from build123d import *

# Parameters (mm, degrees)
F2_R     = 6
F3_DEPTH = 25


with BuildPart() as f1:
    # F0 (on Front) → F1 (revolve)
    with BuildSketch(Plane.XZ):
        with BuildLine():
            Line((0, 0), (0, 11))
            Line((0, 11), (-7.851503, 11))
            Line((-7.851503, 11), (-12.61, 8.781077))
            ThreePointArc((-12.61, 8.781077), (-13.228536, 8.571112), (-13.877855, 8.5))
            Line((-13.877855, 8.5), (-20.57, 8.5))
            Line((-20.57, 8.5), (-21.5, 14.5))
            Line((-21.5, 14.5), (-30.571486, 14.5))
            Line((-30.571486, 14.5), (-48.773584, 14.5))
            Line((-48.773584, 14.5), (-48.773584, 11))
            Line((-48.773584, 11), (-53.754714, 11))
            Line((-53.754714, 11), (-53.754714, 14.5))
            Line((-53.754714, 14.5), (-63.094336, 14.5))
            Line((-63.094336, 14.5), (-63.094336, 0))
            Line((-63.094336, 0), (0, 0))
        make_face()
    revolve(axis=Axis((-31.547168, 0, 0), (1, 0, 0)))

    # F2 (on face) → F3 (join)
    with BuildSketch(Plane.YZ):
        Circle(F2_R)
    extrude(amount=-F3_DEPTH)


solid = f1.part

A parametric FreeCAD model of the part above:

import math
import FreeCAD as App
import Part
import Sketcher
from FreeCAD import Vector
Q = App.Units.Quantity

doc = App.newDocument("Part")
body = doc.addObject("PartDesign::Body", "Body")

# Sketch on XZ plane
sketch1 = body.newObject("Sketcher::SketchObject", "Sketch")
sketch1.AttachmentSupport = (doc.getObject("XZ_Plane"), [""])
sketch1.MapMode = "FlatFace"
sketch1.addGeometry([
    Part.LineSegment(Vector(0, 0, 0), Vector(0, 11, 0)),  # 0
    Part.LineSegment(Vector(0, 11, 0), Vector(-7.9, 11, 0)),  # 1
    Part.LineSegment(Vector(-7.9, 11, 0), Vector(-12.6, 8.8, 0)),  # 2
    Part.ArcOfCircle(Part.Circle(Vector(-13.9, 11.5, 0), Vector(0, 0, 1), 3), math.radians(-90), math.radians(-65)),  # 3
    Part.LineSegment(Vector(-13.9, 8.5, 0), Vector(-20.6, 8.5, 0)),  # 4
    Part.LineSegment(Vector(-20.6, 8.5, 0), Vector(-21.5, 14.5, 0)),  # 5
    Part.LineSegment(Vector(-21.5, 14.5, 0), Vector(-48.8, 14.5, 0)),  # 6
    Part.LineSegment(Vector(-48.8, 14.5, 0), Vector(-48.8, 11, 0)),  # 7
    Part.LineSegment(Vector(-48.8, 11, 0), Vector(-53.8, 11, 0)),  # 8
    Part.LineSegment(Vector(-53.8, 11, 0), Vector(-53.8, 14.5, 0)),  # 9
    Part.LineSegment(Vector(-53.8, 14.5, 0), Vector(-63.1, 14.5, 0)),  # 10
    Part.LineSegment(Vector(-63.1, 14.5, 0), Vector(-63.1, 0, 0)),  # 11
    Part.LineSegment(Vector(-63.1, 0, 0), Vector(0, 0, 0)),  # 12
], False)
sketch1.addConstraint([
    Sketcher.Constraint("Coincident", 0, 2, 1, 1),
    Sketcher.Constraint("Coincident", 1, 2, 2, 1),
    Sketcher.Constraint("Tangent", 2, 2, 3, 2),
    Sketcher.Constraint("Tangent", 3, 1, 4, 1),
    Sketcher.Constraint("Coincident", 4, 2, 5, 1),
    Sketcher.Constraint("Coincident", 5, 2, 6, 1),
    Sketcher.Constraint("Coincident", 6, 2, 7, 1),
    Sketcher.Constraint("Coincident", 7, 2, 8, 1),
    Sketcher.Constraint("Coincident", 8, 2, 9, 1),
    Sketcher.Constraint("Coincident", 9, 2, 10, 1),
    Sketcher.Constraint("Coincident", 10, 2, 11, 1),
    Sketcher.Constraint("Coincident", 11, 2, 12, 1),
    Sketcher.Constraint("Coincident", 12, 2, 0, 1),
    Sketcher.Constraint("Vertical", 0),
    Sketcher.Constraint("Horizontal", 1),
    Sketcher.Constraint("Horizontal", 4),
    Sketcher.Constraint("Horizontal", 6),
    Sketcher.Constraint("Vertical", 7),
    Sketcher.Constraint("Horizontal", 8),
    Sketcher.Constraint("Vertical", 9),
    Sketcher.Constraint("Horizontal", 10),
    Sketcher.Constraint("Vertical", 11),
    Sketcher.Constraint("Horizontal", 12),
    Sketcher.Constraint("Coincident", 12, 2, -1, 1),
    Sketcher.Constraint("Horizontal", 1, 2, 7, 2),
    Sketcher.Constraint("Horizontal", 6, 2, 9, 2),
    Sketcher.Constraint("DistanceY", 0, 1, 0, 2, 11.0),
    Sketcher.Constraint("Angle", 2, Q("-155.000006 deg")),
    Sketcher.Constraint("DistanceY", 7, 2, 7, 1, 3.5),
    Sketcher.Constraint("DistanceY", 4, 2, 5, 2, 6.0),
    Sketcher.Constraint("DistanceX", 5, 2, -1, 1, 21.5),
    Sketcher.Constraint("DistanceX", 2, 2, -1, 1, 12.61),
    Sketcher.Constraint("DistanceX", 4, 2, -1, 1, 20.57),
    Sketcher.Constraint("Radius", 3, 2.999994),
    Sketcher.Constraint("DistanceX", 8, 2, 8, 1, 4.98113),
    Sketcher.Constraint("DistanceX", 10, 2, 10, 1, 9.339622),
    Sketcher.Constraint("DistanceX", 6, 2, 6, 1, 27.273584),
])
revolution = body.newObject("PartDesign::Revolution", "Revolution")
revolution.Profile = sketch1
revolution.ReferenceAxis = (sketch1, ["H_Axis"])
revolution.Angle = 360

# Sketch on YZ plane
sketch2 = body.newObject("Sketcher::SketchObject", "Sketch001")
sketch2.AttachmentSupport = (doc.getObject("YZ_Plane"), [""])
sketch2.MapMode = "FlatFace"
sketch2.addGeometry(Part.Circle(Vector(0, 0, 0), Vector(0, 0, 1), 6), False)
sketch2.addConstraint([
    Sketcher.Constraint("Coincident", 0, 3, -1, 1),
    Sketcher.Constraint("Diameter", 0, 12.0),
])
pad1 = body.newObject("PartDesign::Pad", "Pad")
pad1.Profile = sketch2
pad1.Length = 25
pad1.Reversed = True

doc.recompute()
